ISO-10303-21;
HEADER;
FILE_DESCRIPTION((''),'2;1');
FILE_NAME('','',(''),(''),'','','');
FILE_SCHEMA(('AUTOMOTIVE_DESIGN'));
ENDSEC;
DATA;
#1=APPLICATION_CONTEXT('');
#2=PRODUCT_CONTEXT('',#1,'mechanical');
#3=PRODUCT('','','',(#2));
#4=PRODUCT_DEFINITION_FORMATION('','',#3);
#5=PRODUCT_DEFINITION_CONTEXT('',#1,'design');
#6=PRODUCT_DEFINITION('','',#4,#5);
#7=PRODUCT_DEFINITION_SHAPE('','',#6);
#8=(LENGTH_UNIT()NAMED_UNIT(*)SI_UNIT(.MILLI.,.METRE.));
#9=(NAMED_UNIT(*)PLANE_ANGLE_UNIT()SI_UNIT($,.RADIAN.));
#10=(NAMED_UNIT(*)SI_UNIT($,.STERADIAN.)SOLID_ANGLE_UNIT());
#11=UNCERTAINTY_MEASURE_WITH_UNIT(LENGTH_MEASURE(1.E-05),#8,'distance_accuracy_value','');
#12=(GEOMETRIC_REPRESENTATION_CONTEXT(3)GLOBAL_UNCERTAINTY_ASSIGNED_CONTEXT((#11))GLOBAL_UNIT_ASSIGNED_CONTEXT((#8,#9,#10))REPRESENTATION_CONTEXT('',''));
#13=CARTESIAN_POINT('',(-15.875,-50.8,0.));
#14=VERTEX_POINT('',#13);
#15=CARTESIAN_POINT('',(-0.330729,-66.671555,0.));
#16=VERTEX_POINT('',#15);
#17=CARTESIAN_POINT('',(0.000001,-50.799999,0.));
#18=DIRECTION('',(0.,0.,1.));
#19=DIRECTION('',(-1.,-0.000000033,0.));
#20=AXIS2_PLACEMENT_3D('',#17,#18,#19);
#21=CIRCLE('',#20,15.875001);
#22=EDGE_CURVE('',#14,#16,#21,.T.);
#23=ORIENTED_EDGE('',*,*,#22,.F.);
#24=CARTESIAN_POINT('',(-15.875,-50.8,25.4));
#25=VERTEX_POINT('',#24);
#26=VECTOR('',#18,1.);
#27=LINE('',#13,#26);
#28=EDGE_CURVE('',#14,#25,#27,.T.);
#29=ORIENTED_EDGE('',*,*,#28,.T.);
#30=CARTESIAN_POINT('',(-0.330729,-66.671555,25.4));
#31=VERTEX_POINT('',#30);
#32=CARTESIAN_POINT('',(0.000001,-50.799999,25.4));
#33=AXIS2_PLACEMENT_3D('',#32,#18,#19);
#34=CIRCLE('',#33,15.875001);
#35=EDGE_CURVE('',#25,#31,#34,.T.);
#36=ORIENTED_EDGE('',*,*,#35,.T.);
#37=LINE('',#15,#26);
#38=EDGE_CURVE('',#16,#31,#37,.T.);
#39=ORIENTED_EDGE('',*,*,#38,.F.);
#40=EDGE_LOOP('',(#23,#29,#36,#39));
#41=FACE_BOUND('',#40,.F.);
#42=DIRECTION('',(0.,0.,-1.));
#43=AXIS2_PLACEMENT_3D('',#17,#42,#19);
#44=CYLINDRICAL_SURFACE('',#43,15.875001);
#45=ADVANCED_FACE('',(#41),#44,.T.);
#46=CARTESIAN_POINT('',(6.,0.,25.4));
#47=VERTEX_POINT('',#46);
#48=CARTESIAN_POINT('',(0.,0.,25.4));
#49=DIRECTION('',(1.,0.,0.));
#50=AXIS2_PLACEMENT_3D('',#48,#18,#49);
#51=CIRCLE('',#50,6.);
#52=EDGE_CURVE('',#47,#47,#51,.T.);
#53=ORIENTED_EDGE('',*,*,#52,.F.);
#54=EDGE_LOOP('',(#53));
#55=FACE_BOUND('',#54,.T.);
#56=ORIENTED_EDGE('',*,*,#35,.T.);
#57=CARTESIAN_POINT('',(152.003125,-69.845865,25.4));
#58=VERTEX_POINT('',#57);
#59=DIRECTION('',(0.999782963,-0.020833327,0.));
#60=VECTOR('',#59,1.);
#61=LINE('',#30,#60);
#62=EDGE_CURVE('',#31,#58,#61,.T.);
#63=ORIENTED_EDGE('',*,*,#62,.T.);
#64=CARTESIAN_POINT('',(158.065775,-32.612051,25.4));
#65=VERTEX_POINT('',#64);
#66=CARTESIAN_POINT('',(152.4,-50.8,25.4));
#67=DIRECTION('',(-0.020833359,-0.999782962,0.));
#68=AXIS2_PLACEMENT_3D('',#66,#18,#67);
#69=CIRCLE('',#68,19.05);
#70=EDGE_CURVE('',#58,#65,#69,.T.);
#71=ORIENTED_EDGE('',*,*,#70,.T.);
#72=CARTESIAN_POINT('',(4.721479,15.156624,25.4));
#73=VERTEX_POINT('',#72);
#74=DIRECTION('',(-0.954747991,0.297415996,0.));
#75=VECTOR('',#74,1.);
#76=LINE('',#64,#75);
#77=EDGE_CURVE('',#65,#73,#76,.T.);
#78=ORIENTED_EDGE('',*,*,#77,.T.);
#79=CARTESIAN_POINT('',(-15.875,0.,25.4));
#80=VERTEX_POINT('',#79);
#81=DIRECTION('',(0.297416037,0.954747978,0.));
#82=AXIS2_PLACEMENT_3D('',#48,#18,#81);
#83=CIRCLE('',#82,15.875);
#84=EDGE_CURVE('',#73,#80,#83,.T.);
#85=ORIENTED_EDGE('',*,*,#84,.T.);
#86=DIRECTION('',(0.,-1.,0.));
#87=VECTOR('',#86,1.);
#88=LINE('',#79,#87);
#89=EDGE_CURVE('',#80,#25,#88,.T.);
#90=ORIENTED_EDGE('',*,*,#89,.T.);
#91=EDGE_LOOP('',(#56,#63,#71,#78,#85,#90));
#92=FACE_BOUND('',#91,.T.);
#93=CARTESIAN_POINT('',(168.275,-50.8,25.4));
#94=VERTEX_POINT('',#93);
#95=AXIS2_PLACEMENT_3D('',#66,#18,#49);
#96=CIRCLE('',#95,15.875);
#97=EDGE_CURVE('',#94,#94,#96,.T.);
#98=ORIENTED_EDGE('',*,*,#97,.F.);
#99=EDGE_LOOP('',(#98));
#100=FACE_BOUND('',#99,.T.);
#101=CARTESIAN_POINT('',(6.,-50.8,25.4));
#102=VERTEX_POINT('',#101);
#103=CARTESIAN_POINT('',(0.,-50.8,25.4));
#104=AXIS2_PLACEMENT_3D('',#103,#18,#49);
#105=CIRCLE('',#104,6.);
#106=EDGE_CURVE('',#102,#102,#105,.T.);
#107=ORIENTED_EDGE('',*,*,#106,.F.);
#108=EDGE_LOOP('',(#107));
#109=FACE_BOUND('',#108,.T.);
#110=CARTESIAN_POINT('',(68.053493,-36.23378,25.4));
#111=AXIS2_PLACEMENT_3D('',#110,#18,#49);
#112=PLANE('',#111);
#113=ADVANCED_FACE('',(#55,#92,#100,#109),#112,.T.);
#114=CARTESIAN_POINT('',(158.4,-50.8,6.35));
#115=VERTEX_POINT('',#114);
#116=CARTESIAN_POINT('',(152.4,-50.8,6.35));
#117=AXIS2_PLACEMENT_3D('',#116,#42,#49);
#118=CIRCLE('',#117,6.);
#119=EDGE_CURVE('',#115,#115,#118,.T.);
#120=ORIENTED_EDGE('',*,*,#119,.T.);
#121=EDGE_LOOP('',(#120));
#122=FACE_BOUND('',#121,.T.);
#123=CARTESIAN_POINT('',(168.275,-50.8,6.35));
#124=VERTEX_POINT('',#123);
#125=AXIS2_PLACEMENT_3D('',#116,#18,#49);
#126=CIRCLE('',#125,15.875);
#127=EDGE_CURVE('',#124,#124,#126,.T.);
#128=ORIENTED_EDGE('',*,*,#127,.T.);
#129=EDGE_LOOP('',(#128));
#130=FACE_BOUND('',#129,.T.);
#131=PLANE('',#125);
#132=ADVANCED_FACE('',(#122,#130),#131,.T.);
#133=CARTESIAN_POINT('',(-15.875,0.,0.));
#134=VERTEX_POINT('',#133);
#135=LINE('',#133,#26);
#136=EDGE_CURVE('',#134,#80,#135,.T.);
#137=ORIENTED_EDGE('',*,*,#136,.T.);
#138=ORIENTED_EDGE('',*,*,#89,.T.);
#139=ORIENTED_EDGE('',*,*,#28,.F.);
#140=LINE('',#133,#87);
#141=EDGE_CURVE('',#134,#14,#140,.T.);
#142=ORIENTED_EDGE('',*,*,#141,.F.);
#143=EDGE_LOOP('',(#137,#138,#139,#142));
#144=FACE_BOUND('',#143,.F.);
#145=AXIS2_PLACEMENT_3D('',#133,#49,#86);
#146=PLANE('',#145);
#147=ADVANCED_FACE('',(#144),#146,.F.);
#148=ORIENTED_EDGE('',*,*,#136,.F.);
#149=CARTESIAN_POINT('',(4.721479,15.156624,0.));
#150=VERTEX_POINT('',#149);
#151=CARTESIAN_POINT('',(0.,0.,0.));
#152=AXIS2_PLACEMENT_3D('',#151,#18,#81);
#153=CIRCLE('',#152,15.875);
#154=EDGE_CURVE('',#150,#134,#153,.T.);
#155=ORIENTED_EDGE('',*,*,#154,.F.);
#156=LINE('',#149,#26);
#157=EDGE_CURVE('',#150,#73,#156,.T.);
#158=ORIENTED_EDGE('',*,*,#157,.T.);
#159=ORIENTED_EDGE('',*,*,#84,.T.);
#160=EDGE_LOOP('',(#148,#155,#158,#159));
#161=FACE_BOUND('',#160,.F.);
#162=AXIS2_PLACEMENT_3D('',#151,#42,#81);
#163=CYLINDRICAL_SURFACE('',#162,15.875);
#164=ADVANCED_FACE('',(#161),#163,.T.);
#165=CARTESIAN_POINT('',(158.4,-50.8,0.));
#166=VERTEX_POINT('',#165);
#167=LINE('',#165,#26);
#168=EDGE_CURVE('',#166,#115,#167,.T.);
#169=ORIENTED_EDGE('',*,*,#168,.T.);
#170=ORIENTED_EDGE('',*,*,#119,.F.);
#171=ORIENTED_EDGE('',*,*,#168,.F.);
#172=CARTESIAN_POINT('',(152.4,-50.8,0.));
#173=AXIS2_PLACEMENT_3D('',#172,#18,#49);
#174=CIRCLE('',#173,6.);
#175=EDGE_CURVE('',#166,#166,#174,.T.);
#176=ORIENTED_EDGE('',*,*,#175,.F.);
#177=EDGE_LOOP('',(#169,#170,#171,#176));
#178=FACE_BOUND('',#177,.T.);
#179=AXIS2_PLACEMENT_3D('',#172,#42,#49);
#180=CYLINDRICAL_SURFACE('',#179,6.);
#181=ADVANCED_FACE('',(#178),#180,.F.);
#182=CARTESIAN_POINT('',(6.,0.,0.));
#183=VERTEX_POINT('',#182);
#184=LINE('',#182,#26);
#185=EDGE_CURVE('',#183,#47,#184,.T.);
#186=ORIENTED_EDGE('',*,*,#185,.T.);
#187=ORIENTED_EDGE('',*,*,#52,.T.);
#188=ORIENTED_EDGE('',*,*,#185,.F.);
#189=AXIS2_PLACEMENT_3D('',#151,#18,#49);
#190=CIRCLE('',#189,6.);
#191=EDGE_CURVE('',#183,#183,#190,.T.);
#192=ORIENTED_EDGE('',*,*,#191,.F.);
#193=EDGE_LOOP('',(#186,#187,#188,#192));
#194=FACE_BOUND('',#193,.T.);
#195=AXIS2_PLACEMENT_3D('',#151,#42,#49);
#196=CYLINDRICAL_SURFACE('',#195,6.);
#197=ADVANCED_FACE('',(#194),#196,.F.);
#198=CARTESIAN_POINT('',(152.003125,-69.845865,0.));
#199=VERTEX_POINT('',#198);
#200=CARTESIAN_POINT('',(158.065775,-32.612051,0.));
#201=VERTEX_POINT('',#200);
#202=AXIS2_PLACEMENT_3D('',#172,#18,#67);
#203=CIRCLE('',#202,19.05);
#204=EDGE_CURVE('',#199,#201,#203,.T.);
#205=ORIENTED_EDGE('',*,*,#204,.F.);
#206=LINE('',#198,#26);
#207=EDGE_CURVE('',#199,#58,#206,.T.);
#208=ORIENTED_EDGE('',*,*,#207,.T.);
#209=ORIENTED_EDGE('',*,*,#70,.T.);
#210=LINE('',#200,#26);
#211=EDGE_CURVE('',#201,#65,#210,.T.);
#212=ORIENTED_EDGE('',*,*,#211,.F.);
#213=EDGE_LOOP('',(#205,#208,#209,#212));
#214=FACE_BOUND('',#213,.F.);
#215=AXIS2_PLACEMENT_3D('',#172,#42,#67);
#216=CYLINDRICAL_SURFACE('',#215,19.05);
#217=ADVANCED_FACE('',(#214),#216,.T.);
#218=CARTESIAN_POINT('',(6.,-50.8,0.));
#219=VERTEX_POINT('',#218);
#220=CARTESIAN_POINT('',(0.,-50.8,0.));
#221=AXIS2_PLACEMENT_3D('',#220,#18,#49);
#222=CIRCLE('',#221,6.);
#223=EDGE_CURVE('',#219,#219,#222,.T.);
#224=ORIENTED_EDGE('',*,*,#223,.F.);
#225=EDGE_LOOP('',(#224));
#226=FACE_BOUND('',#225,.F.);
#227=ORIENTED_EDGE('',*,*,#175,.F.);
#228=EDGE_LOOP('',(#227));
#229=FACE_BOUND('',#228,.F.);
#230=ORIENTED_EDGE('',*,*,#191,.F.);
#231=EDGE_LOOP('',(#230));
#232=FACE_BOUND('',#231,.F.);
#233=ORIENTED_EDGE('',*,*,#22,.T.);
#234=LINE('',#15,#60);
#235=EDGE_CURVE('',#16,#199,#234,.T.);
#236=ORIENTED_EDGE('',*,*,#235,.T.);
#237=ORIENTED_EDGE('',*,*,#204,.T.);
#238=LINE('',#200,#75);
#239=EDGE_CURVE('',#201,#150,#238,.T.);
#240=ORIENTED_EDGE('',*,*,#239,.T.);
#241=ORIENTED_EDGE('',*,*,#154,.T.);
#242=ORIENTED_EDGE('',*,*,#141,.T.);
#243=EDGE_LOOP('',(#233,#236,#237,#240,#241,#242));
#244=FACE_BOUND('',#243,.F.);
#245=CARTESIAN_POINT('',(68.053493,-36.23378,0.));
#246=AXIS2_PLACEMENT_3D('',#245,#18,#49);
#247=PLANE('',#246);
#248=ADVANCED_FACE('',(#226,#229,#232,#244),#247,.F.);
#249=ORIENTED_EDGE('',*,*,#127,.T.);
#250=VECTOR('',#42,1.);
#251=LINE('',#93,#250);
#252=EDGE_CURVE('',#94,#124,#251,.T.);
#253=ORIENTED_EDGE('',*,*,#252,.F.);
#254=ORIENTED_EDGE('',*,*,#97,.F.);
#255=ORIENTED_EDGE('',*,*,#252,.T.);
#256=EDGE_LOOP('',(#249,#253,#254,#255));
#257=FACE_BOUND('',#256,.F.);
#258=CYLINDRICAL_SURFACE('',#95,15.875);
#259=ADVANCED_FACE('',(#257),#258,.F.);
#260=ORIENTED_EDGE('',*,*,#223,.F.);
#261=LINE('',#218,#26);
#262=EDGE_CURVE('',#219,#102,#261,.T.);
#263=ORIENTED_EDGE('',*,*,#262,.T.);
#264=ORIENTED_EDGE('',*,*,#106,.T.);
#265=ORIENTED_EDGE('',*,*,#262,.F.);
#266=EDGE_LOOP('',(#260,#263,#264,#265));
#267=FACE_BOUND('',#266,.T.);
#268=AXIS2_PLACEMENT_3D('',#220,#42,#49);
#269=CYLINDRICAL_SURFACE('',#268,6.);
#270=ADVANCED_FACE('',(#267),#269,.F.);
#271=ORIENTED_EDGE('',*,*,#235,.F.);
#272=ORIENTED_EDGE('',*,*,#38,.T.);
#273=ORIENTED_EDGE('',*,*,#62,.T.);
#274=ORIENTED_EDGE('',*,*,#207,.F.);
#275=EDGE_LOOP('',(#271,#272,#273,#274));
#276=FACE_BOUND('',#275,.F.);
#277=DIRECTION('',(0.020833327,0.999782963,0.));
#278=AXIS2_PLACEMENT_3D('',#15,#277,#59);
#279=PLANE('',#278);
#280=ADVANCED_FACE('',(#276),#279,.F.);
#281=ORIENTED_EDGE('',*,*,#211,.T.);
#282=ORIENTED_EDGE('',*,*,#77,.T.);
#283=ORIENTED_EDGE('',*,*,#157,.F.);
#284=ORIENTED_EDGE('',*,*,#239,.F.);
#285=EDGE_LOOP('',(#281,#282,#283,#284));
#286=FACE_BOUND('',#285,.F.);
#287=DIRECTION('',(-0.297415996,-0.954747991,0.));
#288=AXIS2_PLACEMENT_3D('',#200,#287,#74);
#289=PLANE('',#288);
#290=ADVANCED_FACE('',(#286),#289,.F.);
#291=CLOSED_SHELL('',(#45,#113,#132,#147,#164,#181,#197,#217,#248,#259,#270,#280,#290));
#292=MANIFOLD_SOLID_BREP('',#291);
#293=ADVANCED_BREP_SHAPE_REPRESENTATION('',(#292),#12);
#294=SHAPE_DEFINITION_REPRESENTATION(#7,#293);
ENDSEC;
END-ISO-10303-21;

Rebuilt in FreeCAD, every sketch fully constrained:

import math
import FreeCAD as App
import Part
import Sketcher
Q = App.Units.Quantity

doc = App.newDocument("Part")
body = doc.addObject("PartDesign::Body", "Body")

# Sketch on XY plane
sketch1 = doc.addObject("Sketcher::SketchObject", "Sketch")
body.addObject(sketch1)
sketch1.AttachmentSupport = (doc.XY_Plane, [""])
sketch1.MapMode = "FlatFace"
sketch1.addGeometry([
    Part.ArcOfCircle(Part.Circle(App.Vector(0, -51, 0), App.Vector(0, 0, 1), 16), math.radians(-180), math.radians(-91)),  # 0
    Part.LineSegment(App.Vector(0, -67, 0), App.Vector(152, -70, 0)),  # 1
    Part.ArcOfCircle(Part.Circle(App.Vector(152, -51, 0), App.Vector(0, 0, 1), 19), math.radians(-91), math.radians(73)),  # 2
    Part.LineSegment(App.Vector(158, -33, 0), App.Vector(5, 15, 0)),  # 3
    Part.ArcOfCircle(Part.Circle(App.Vector(0, 0, 0), App.Vector(0, 0, 1), 16), math.radians(73), math.radians(180)),  # 4
    Part.LineSegment(App.Vector(-16, 0, 0), App.Vector(-16, -51, 0)),  # 5
    Part.Circle(App.Vector(0, -51, 0), App.Vector(0, 0, 1), 6),  # 6
    Part.Circle(App.Vector(152, -51, 0), App.Vector(0, 0, 1), 6),  # 7
    Part.Circle(App.Vector(0, 0, 0), App.Vector(0, 0, 1), 6),  # 8
], False)
sketch1.addConstraint([
    Sketcher.Constraint("Tangent", 0, 2, 1, 1),
    Sketcher.Constraint("Tangent", 1, 2, 2, 1),
    Sketcher.Constraint("Tangent", 2, 2, 3, 1),
    Sketcher.Constraint("Tangent", 3, 2, 4, 1),
    Sketcher.Constraint("Tangent", 4, 2, 5, 1),
    Sketcher.Constraint("Tangent", 5, 2, 0, 1),
    Sketcher.Constraint("Vertical", 5),
    Sketcher.Constraint("Coincident", 4, 3, -1, 1),
    Sketcher.Constraint("Coincident", 8, 3, -1, 1),
    Sketcher.Constraint("Coincident", 6, 3, 0, 3),
    Sketcher.Constraint("Coincident", 7, 3, 2, 3),
    Sketcher.Constraint("Equal", 0, 4),
    Sketcher.Constraint("Equal", 6, 7),
    Sketcher.Constraint("Equal", 7, 8),
    Sketcher.Constraint("Horizontal", 0, 3, 2, 3),
    Sketcher.Constraint("DistanceY", 5, 2, 5, 1, Q("2 in")),
    Sketcher.Constraint("Radius", 2, Q("0.75 in")),
    Sketcher.Constraint("DistanceX", -1, 1, 2, 3, Q("6 in")),
    Sketcher.Constraint("Radius", 0, Q("0.625 in")),
    Sketcher.Constraint("Diameter", 6, Q("12 mm")),
])
pad1 = doc.addObject("PartDesign::Pad", "Pad")
body.addObject(pad1)
pad1.Profile = sketch1
pad1.Length = Q("1 in")

# Sketch on XY plane
sketch2 = doc.addObject("Sketcher::SketchObject", "Sketch001")
body.addObject(sketch2)
sketch2.AttachmentSupport = (doc.XY_Plane, [""])
sketch2.MapMode = "FlatFace"
sketch2.AttachmentOffset = App.Placement(App.Vector(0, 0, 1 * 25.4), App.Rotation())
sketch2.addGeometry(Part.Circle(App.Vector(152, -51, 0), App.Vector(0, 0, 1), 16), False)
sketch2.addConstraint([
    Sketcher.Constraint("Diameter", 0, Q("1.25 in")),
    Sketcher.Constraint("DistanceX", -1, 1, 0, 3, Q("6 in")),
    Sketcher.Constraint("DistanceY", 0, 3, -1, 1, Q("2 in")),
])
pocket1 = doc.addObject("PartDesign::Pocket", "Pocket")
body.addObject(pocket1)
pocket1.Profile = sketch2
pocket1.Length = Q("0.75 in")

doc.recompute()
